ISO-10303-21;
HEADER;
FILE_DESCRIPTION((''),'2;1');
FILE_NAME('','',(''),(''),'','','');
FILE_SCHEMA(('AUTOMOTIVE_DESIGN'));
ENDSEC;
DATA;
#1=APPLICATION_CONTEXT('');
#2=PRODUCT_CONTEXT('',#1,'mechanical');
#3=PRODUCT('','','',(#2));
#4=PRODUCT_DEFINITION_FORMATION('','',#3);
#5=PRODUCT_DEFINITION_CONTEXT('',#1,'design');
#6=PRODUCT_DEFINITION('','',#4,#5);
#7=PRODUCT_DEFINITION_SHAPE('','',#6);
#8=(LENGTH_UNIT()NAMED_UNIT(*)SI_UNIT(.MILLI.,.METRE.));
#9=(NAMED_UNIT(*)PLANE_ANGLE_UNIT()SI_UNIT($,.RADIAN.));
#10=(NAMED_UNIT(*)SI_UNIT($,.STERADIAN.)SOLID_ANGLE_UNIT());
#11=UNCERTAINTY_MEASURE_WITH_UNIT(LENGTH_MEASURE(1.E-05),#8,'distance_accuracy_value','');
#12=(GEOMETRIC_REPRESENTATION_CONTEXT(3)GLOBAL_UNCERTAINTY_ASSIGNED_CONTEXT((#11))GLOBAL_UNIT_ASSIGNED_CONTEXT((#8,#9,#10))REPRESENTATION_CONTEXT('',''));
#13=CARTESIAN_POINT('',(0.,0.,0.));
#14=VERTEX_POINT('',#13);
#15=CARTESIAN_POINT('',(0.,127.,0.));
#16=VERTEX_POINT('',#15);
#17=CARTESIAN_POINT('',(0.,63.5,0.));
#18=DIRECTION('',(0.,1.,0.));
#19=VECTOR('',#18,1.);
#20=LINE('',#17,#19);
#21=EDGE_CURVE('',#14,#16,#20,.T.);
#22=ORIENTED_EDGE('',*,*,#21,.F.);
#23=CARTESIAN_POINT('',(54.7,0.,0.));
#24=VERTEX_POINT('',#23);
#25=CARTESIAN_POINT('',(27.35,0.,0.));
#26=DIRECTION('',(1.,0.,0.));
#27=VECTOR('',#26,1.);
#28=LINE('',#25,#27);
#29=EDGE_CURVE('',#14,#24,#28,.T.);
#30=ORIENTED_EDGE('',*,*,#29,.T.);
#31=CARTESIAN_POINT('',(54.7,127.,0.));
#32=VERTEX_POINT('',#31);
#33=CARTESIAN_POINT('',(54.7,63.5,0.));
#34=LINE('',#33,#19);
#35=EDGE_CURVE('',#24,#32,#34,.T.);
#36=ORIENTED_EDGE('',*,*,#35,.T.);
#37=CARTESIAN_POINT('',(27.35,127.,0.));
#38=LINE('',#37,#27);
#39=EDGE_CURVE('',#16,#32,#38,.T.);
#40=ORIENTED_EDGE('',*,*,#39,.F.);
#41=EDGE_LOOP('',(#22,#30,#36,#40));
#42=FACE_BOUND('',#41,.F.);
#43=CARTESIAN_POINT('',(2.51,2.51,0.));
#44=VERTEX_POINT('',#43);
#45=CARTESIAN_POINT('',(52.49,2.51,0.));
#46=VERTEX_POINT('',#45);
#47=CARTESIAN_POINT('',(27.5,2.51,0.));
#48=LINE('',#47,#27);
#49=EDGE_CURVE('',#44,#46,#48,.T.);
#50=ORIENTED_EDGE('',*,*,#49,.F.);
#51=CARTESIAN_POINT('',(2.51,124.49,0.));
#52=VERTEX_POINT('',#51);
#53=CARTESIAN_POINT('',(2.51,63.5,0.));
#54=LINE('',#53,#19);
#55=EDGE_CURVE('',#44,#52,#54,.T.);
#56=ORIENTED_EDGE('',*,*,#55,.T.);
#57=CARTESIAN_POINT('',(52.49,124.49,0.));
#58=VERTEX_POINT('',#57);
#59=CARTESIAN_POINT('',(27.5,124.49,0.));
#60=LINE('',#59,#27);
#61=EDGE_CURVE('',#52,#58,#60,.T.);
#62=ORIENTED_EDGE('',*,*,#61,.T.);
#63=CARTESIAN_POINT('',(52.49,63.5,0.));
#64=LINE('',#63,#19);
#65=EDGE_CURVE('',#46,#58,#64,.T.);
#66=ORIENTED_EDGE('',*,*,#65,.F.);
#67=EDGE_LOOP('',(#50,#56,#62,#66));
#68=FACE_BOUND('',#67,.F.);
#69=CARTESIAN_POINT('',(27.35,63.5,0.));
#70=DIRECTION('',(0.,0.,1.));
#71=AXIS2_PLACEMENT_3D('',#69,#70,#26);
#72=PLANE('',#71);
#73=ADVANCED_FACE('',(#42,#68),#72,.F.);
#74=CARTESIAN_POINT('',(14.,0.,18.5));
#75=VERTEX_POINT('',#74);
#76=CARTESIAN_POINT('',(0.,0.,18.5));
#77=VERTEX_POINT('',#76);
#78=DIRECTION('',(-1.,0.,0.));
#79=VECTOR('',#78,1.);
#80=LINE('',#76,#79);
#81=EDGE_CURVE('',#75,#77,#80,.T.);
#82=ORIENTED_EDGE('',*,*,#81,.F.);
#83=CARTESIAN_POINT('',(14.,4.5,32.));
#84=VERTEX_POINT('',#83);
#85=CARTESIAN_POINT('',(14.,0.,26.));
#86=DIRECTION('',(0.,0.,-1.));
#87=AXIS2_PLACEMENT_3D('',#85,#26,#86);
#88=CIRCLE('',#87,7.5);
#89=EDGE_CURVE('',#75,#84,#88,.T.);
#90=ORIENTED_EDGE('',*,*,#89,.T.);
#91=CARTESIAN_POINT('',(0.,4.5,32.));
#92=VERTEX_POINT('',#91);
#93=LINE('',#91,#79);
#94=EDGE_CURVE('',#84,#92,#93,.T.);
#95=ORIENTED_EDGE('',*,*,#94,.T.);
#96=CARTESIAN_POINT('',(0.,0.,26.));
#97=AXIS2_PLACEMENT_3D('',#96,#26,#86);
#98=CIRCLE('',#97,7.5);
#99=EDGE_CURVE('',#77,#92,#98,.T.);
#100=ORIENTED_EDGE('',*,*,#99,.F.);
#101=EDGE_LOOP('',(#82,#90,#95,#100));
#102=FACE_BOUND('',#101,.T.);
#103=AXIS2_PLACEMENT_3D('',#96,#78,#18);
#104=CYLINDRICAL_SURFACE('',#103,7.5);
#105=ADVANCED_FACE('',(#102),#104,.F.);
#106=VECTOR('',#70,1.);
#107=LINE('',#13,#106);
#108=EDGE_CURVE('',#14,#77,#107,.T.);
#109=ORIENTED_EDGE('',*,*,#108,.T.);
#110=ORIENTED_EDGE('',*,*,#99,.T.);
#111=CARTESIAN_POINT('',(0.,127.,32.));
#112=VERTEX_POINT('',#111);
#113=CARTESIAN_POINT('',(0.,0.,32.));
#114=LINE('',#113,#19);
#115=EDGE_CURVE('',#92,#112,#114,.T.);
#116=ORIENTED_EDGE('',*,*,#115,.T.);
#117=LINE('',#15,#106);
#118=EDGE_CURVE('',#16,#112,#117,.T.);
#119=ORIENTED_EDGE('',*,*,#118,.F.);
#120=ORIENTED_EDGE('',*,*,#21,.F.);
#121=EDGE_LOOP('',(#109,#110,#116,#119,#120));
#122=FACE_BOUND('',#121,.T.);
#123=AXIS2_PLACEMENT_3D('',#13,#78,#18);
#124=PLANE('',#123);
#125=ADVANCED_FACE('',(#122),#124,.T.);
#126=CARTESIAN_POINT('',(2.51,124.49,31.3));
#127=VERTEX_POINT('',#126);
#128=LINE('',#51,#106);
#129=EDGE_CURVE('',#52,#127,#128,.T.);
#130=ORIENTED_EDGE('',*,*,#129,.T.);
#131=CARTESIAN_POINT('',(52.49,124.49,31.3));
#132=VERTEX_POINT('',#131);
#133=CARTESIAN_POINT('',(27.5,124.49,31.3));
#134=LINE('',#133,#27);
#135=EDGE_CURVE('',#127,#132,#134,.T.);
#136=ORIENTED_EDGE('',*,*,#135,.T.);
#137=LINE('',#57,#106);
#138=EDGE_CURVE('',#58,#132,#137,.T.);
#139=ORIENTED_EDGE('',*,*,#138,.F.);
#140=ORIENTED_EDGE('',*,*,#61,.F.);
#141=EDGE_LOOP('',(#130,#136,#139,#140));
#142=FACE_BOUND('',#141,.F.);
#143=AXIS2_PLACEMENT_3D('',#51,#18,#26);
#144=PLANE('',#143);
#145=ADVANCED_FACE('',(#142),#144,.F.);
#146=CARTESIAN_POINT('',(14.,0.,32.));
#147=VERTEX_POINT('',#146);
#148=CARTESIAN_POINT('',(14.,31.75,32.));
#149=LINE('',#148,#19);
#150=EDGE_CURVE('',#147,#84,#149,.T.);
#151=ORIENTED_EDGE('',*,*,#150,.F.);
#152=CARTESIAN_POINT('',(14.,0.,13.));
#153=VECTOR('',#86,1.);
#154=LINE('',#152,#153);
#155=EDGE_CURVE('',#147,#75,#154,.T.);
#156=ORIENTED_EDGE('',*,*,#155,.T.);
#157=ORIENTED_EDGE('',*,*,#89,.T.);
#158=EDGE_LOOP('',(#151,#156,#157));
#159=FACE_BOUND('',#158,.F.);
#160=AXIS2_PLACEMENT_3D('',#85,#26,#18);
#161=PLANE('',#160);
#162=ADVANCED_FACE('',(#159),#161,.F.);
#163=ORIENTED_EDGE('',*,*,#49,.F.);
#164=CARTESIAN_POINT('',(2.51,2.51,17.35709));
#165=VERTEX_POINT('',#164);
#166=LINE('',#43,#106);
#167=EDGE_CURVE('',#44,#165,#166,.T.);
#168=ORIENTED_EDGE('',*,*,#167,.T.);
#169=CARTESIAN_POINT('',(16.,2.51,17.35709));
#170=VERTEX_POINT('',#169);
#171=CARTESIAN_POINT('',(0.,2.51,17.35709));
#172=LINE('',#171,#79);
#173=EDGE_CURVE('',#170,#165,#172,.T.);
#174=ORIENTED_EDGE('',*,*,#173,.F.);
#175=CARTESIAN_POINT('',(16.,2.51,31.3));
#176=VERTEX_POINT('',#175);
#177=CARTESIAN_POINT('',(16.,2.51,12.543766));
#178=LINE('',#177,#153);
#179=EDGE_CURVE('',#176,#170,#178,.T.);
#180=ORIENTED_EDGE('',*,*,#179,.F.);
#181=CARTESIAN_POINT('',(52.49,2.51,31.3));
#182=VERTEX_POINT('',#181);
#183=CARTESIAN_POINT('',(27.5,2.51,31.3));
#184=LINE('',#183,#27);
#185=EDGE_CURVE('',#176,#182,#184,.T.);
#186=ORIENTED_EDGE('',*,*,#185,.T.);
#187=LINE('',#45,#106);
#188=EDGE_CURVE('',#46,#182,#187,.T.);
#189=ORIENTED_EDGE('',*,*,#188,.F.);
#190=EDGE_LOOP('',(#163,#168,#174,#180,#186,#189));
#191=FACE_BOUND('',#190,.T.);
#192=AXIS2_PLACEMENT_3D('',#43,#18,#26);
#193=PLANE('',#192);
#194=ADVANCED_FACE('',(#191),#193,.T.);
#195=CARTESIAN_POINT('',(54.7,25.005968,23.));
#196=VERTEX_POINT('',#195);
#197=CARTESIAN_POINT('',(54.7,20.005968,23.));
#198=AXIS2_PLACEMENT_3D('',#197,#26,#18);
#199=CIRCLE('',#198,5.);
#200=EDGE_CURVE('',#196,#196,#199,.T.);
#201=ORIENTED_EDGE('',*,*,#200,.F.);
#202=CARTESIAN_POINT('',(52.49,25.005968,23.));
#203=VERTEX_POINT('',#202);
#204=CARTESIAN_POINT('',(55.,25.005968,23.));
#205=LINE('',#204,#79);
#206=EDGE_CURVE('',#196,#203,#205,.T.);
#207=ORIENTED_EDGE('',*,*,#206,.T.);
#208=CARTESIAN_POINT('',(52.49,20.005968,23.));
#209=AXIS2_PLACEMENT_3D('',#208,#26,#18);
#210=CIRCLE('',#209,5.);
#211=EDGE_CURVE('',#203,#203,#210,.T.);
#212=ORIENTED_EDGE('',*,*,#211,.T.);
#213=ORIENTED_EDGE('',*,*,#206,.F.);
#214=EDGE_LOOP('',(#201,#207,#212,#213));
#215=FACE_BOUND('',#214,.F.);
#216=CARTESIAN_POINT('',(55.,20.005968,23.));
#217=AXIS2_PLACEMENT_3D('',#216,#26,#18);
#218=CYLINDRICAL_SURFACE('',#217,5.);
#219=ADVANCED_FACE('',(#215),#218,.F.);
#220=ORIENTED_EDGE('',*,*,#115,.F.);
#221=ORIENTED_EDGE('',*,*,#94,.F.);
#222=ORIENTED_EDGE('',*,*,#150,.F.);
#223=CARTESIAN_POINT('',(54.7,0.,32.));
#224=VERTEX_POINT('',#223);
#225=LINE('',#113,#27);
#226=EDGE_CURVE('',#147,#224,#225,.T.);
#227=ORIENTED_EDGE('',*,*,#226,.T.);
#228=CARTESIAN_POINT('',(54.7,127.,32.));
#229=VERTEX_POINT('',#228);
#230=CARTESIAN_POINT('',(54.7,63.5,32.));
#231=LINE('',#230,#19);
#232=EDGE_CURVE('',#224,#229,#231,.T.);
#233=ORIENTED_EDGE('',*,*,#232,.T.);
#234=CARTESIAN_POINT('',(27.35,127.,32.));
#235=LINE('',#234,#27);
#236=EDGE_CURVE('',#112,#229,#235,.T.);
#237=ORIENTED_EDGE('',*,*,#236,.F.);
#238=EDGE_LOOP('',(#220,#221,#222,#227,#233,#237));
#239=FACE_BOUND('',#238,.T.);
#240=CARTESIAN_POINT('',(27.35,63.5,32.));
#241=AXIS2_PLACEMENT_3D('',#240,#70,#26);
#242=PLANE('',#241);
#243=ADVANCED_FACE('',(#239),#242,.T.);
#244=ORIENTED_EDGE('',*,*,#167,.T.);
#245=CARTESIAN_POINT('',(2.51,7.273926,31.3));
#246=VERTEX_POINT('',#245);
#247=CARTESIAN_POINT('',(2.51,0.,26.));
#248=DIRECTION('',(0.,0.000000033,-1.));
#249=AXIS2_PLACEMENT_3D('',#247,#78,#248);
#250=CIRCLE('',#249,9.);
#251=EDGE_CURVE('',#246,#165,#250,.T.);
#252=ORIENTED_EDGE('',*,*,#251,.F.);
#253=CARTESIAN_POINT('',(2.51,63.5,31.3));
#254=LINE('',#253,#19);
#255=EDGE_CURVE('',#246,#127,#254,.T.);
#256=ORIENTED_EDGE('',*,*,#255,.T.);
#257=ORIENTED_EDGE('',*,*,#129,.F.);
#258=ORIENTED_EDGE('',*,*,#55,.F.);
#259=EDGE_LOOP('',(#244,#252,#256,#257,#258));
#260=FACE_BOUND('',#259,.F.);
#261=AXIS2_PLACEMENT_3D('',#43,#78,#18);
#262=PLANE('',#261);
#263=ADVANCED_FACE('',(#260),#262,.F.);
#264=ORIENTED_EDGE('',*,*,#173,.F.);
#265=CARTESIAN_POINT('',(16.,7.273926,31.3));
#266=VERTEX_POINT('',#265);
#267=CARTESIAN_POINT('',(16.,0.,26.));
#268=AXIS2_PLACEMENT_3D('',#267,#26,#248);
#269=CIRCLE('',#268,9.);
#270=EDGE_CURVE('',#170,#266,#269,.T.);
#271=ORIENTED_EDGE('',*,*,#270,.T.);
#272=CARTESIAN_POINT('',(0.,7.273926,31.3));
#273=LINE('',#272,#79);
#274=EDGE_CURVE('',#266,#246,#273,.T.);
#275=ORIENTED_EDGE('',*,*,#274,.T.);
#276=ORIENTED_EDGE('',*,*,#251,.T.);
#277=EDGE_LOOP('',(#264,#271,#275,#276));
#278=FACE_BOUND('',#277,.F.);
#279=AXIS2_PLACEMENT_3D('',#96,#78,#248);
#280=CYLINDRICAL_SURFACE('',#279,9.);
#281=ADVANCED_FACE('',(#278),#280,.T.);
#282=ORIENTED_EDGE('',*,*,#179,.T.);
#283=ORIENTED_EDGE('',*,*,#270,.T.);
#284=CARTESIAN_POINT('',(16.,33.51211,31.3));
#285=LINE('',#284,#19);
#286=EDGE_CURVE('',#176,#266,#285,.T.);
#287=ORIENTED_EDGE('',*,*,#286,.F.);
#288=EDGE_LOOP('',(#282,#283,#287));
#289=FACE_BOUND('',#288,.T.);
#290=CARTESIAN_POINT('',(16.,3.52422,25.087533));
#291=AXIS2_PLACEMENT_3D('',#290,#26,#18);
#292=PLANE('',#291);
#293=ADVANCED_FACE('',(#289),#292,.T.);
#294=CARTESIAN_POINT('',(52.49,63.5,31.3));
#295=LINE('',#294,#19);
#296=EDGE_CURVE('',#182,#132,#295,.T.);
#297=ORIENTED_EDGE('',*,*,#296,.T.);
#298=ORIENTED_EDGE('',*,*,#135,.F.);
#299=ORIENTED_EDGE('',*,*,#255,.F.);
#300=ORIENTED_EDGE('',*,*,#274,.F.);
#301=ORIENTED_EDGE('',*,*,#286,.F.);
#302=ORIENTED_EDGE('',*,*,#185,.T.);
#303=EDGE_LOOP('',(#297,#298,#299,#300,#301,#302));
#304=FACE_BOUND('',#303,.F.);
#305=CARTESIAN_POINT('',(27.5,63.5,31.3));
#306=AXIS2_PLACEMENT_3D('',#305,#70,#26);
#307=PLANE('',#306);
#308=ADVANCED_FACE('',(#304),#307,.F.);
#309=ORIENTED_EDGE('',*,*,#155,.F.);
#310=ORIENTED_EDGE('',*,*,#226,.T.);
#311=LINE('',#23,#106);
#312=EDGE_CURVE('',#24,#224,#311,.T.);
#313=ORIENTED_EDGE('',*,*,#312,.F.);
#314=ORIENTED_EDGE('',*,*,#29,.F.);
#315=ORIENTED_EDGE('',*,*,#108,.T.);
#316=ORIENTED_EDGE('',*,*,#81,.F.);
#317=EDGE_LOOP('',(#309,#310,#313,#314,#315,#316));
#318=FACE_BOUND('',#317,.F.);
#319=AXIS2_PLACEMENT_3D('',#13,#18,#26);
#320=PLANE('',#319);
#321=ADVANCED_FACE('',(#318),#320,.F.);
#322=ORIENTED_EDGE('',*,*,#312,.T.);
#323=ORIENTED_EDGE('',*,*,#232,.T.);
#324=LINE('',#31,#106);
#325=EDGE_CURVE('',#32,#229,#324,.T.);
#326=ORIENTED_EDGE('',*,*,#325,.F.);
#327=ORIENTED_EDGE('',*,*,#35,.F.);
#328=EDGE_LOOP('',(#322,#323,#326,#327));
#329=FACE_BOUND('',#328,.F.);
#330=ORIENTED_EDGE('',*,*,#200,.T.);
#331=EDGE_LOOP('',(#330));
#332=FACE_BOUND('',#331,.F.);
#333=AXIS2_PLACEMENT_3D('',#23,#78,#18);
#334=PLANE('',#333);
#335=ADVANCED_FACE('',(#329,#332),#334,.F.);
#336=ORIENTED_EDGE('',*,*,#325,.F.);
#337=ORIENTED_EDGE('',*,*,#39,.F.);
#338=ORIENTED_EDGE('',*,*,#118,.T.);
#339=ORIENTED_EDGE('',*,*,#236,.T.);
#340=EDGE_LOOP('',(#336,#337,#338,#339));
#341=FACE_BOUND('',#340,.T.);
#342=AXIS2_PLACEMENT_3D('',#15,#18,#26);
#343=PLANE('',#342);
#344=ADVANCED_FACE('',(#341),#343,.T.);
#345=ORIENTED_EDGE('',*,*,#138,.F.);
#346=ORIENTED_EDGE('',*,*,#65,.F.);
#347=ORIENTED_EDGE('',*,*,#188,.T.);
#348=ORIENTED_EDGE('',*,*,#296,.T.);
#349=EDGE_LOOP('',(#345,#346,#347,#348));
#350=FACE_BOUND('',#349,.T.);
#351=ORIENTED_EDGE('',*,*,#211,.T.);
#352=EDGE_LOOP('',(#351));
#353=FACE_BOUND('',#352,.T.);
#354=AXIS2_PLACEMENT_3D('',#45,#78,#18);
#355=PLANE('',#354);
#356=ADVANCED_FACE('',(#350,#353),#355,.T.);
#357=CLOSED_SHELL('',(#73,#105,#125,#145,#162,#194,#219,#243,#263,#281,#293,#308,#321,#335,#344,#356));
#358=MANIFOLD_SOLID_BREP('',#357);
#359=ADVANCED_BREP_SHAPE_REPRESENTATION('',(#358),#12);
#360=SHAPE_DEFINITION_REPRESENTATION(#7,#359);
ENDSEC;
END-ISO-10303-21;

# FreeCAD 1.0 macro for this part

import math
import FreeCAD as App
import Part
import Sketcher

doc = App.newDocument("Part")
body = doc.addObject("PartDesign::Body", "Body")

sketch1 = body.newObject("Sketcher::SketchObject", "Sketch")
sketch1.AttachmentSupport = (doc.getObject("XY_Plane"), [""])
sketch1.MapMode = "FlatFace"
sketch1.addGeometry([
    Part.LineSegment(App.Vector(0, 127, 0), App.Vector(0, 0, 0)),
    Part.LineSegment(App.Vector(0, 0, 0), App.Vector(55, 0, 0)),
    Part.LineSegment(App.Vector(55, 0, 0), App.Vector(55, 127, 0)),
    Part.LineSegment(App.Vector(55, 127, 0), App.Vector(0, 127, 0)),
], False)
sketch1.addConstraint([
    Sketcher.Constraint("Coincident", 0, 2, 1, 1),
    Sketcher.Constraint("Coincident", 1, 2, 2, 1),
    Sketcher.Constraint("Coincident", 2, 2, 3, 1),
    Sketcher.Constraint("Coincident", 3, 2, 0, 1),
    Sketcher.Constraint("Vertical", 0),
    Sketcher.Constraint("Horizontal", 1),
    Sketcher.Constraint("Vertical", 2),
    Sketcher.Constraint("Horizontal", 3),
    Sketcher.Constraint("Coincident", 0, 2, -1, 1),
    Sketcher.Constraint("DistanceY", 0, 2, 0, 1, 127.0),
    Sketcher.Constraint("DistanceX", 1, 1, 1, 2, 54.7),
])
pad1 = body.newObject("PartDesign::Pad", "Pad")
pad1.Profile = sketch1
pad1.Length = 32

sketch2 = body.newObject("Sketcher::SketchObject", "Sketch001")
sketch2.AttachmentSupport = (doc.getObject("XY_Plane"), [""])
sketch2.MapMode = "FlatFace"
sketch2.addGeometry([
    Part.LineSegment(App.Vector(3, 124, 0), App.Vector(3, 3, 0)),
    Part.LineSegment(App.Vector(3, 3, 0), App.Vector(52, 3, 0)),
    Part.LineSegment(App.Vector(52, 3, 0), App.Vector(52, 124, 0)),
    Part.LineSegment(App.Vector(52, 124, 0), App.Vector(3, 124, 0)),
], False)
sketch2.addConstraint([
    Sketcher.Constraint("Coincident", 0, 2, 1, 1),
    Sketcher.Constraint("Coincident", 1, 2, 2, 1),
    Sketcher.Constraint("Coincident", 2, 2, 3, 1),
    Sketcher.Constraint("Coincident", 3, 2, 0, 1),
    Sketcher.Constraint("Vertical", 0),
    Sketcher.Constraint("Horizontal", 1),
    Sketcher.Constraint("Vertical", 2),
    Sketcher.Constraint("Horizontal", 3),
    Sketcher.Constraint("DistanceX", 1, 1, 1, 2, 49.98),
    Sketcher.Constraint("DistanceY", 0, 2, 0, 1, 121.98),
    Sketcher.Constraint("DistanceX", -1, 1, 0, 2, 2.51),
    Sketcher.Constraint("DistanceY", -1, 1, 0, 2, 2.51),
])
pocket1 = body.newObject("PartDesign::Pocket", "Pocket")
pocket1.Profile = sketch2
pocket1.Length = 31.3
pocket1.Reversed = True

sketch3 = body.newObject("Sketcher::SketchObject", "Sketch002")
sketch3.AttachmentSupport = (doc.getObject("YZ_Plane"), [""])
sketch3.MapMode = "FlatFace"
sketch3.addGeometry([
    Part.ArcOfCircle(Part.Circle(App.Vector(0, 26, 0), App.Vector(0, 0, 1), 9), math.radians(-90), math.radians(42)),
    Part.LineSegment(App.Vector(7, 32, 0), App.Vector(0, 32, 0)),
    Part.LineSegment(App.Vector(0, 32, 0), App.Vector(0, 17, 0)),
], False)
sketch3.addConstraint([
    Sketcher.Constraint("Coincident", 0, 2, 1, 1),
    Sketcher.Constraint("Coincident", 1, 2, 2, 1),
    Sketcher.Constraint("Coincident", 2, 2, 0, 1),
    Sketcher.Constraint("Horizontal", 1),
    Sketcher.Constraint("Vertical", 2),
    Sketcher.Constraint("PointOnObject", 0, 3, -2),
    Sketcher.Constraint("PointOnObject", 1, 2, -2),
    Sketcher.Constraint("Radius", 0, 9.0),
    Sketcher.Constraint("DistanceY", 2, 2, 2, 1, 15.0),
    Sketcher.Constraint("DistanceY", -1, 1, 0, 3, 26.0),
])
pad2 = body.newObject("PartDesign::Pad", "Pad001")
pad2.Profile = sketch3
pad2.Length = 16

sketch4 = body.newObject("Sketcher::SketchObject", "Sketch003")
sketch4.AttachmentSupport = (doc.getObject("YZ_Plane"), [""])
sketch4.MapMode = "FlatFace"
sketch4.addGeometry(Part.Circle(App.Vector(0, 26, 0), App.Vector(0, 0, 1), 8), False)
sketch4.addConstraint([
    Sketcher.Constraint("PointOnObject", 0, 3, -2),
    Sketcher.Constraint("Diameter", 0, 15.0),
    Sketcher.Constraint("DistanceY", -1, 1, 0, 3, 26.0),
])
pocket2 = body.newObject("PartDesign::Pocket", "Pocket001")
pocket2.Profile = sketch4
pocket2.Length = 14
pocket2.Reversed = True

sketch5 = body.newObject("Sketcher::SketchObject", "Sketch004")
sketch5.AttachmentSupport = (doc.getObject("YZ_Plane"), [""])
sketch5.MapMode = "FlatFace"
sketch5.AttachmentOffset = App.Placement(App.Vector(0, 0, 55), App.Rotation())
sketch5.addGeometry(Part.Circle(App.Vector(20, 23, 0), App.Vector(0, 0, 1), 5), False)
sketch5.addConstraint([
    Sketcher.Constraint("Diameter", 0, 10.0),
    Sketcher.Constraint("DistanceY", -1, 1, 0, 3, 23.0),
    Sketcher.Constraint("DistanceX", -1, 1, 0, 3, 20.005968),
])
pocket3 = body.newObject("PartDesign::Pocket", "Pocket002")
pocket3.Profile = sketch5
pocket3.Length = 5

doc.recompute()
